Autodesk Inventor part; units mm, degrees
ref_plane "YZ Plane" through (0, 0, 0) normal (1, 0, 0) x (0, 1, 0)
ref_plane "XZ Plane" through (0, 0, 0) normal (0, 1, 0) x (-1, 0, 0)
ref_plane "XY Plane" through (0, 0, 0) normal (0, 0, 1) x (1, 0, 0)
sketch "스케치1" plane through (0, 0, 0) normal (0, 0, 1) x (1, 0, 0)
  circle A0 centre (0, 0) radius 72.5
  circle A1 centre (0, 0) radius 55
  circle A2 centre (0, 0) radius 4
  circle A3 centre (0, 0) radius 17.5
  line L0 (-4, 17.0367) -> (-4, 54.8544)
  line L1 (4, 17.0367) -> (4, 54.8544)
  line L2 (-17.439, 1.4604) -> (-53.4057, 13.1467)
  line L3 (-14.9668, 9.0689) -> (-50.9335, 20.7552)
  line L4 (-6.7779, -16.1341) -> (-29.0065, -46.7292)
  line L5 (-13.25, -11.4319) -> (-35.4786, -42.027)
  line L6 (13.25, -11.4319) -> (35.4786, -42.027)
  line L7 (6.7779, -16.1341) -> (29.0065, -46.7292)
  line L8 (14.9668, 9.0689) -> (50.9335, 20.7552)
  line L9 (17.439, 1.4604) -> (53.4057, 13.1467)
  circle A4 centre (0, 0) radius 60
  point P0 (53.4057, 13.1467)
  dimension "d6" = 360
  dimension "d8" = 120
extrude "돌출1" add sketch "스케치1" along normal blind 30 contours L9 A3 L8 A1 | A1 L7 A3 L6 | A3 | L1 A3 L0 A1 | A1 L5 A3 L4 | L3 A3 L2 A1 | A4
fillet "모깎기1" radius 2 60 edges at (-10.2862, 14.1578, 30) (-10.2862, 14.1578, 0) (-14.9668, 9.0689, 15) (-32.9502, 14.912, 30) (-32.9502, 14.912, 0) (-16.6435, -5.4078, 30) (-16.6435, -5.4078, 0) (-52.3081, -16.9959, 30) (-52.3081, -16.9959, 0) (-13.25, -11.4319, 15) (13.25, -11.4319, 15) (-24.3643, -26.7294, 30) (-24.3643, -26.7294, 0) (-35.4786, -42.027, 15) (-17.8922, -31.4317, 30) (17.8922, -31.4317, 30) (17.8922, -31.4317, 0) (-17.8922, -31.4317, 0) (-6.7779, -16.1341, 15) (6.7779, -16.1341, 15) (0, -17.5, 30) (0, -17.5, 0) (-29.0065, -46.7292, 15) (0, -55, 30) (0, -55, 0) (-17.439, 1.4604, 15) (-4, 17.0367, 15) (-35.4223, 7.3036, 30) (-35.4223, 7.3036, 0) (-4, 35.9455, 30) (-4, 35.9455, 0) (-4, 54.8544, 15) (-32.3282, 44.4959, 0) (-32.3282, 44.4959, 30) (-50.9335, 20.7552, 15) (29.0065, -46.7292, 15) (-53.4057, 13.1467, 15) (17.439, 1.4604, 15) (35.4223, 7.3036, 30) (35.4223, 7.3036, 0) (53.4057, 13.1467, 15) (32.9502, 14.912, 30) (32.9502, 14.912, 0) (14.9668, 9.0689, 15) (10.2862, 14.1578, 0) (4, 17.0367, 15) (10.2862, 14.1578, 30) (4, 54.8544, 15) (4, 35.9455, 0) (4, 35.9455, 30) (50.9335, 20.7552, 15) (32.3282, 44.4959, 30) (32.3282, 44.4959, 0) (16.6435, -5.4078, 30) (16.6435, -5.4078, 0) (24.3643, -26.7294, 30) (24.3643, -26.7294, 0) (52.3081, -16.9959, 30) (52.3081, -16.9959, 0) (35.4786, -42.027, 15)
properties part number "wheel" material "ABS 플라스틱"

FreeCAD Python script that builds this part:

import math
import FreeCAD as App
import Part
import Sketcher
Q = App.Units.Quantity


def edges_at(feature, points):
    """Names of the edges that pass closest to the given points."""
    edges = feature.Shape.Edges
    near = lambda p: min(range(len(edges)), key=lambda i: edges[i].distToShape(Part.Vertex(*p))[0])
    return sorted({f"Edge{near(p) + 1}" for p in points})

doc = App.newDocument("Part")
body = doc.addObject("PartDesign::Body", "Body")

# Sketch on XY plane
sketch1 = doc.addObject("Sketcher::SketchObject", "Sketch")
body.addObject(sketch1)
sketch1.AttachmentSupport = (doc.XY_Plane, [""])
sketch1.MapMode = "FlatFace"
sketch1.addGeometry([
    Part.Circle(App.Vector(0, 0, 0), App.Vector(0, 0, 1), 60),  # 0
    Part.LineSegment(App.Vector(17.439, 1.4604, 0), App.Vector(53.4057, 13.1467, 0)),  # 1
    Part.ArcOfCircle(Part.Circle(App.Vector(0, 0, 0), App.Vector(0, 0, 1), 55), math.radians(-49.829415), math.radians(13.82934)),  # 2
    Part.LineSegment(App.Vector(35.4786, -42.027, 0), App.Vector(13.25, -11.4319, 0)),  # 3
    Part.ArcOfCircle(Part.Circle(App.Vector(0, 0, 0), App.Vector(0, 0, 1), 17.5), math.radians(-40.787129), math.radians(4.78697)),  # 4
    Part.LineSegment(App.Vector(50.9335, 20.7552, 0), App.Vector(14.9668, 9.0689, 0)),  # 5
    Part.ArcOfCircle(Part.Circle(App.Vector(0, 0, 0), App.Vector(0, 0, 1), 17.5), math.radians(31.213117), math.radians(76.787001)),  # 6
    Part.LineSegment(App.Vector(4, 17.0367, 0), App.Vector(4, 54.8544, 0)),  # 7
    Part.ArcOfCircle(Part.Circle(App.Vector(0, 0, 0), App.Vector(0, 0, 1), 55), math.radians(22.170701), math.radians(85.829356)),  # 8
    Part.ArcOfCircle(Part.Circle(App.Vector(0, 0, 0), App.Vector(0, 0, 1), 17.5), math.radians(-112.787169), math.radians(-67.212831)),  # 9
    Part.LineSegment(App.Vector(6.7779, -16.1341, 0), App.Vector(29.0065, -46.7292, 0)),  # 10
    Part.ArcOfCircle(Part.Circle(App.Vector(0, 0, 0), App.Vector(0, 0, 1), 55), math.radians(-121.829366), math.radians(-58.170634)),  # 11
    Part.LineSegment(App.Vector(-29.0065, -46.7292, 0), App.Vector(-6.7779, -16.1341, 0)),  # 12
    Part.ArcOfCircle(Part.Circle(App.Vector(0, 0, 0), App.Vector(0, 0, 1), 17.5), math.radians(175.21303), math.radians(220.787129)),  # 13
    Part.LineSegment(App.Vector(-13.25, -11.4319, 0), App.Vector(-35.4786, -42.027, 0)),  # 14
    Part.ArcOfCircle(Part.Circle(App.Vector(0, 0, 0), App.Vector(0, 0, 1), 55), math.radians(166.17066), math.radians(229.829415)),  # 15
    Part.LineSegment(App.Vector(-53.4057, 13.1467, 0), App.Vector(-17.439, 1.4604, 0)),  # 16
    Part.ArcOfCircle(Part.Circle(App.Vector(0, 0, 0), App.Vector(0, 0, 1), 17.5), math.radians(103.212999), math.radians(148.786883)),  # 17
    Part.LineSegment(App.Vector(-14.9668, 9.0689, 0), App.Vector(-50.9335, 20.7552, 0)),  # 18
    Part.ArcOfCircle(Part.Circle(App.Vector(0, 0, 0), App.Vector(0, 0, 1), 55), math.radians(94.170644), math.radians(157.829299)),  # 19
    Part.LineSegment(App.Vector(-4, 54.8544, 0), App.Vector(-4, 17.0367, 0)),  # 20
    Part.Circle(App.Vector(0, 0, 0), App.Vector(0, 0, 1), 4),  # 21
], False)
sketch1.addConstraint([
    Sketcher.Constraint("Coincident", 1, 2, 2, 2),
    Sketcher.Constraint("Coincident", 2, 1, 3, 1),
    Sketcher.Constraint("Coincident", 3, 2, 4, 1),
    Sketcher.Constraint("Coincident", 4, 2, 1, 1),
    Sketcher.Constraint("Coincident", 5, 2, 6, 1),
    Sketcher.Constraint("Coincident", 6, 2, 7, 1),
    Sketcher.Constraint("Coincident", 7, 2, 8, 2),
    Sketcher.Constraint("Coincident", 8, 1, 5, 1),
    Sketcher.Constraint("Coincident", 9, 2, 10, 1),
    Sketcher.Constraint("Coincident", 10, 2, 11, 2),
    Sketcher.Constraint("Coincident", 11, 1, 12, 1),
    Sketcher.Constraint("Coincident", 12, 2, 9, 1),
    Sketcher.Constraint("Coincident", 13, 2, 14, 1),
    Sketcher.Constraint("Coincident", 14, 2, 15, 2),
    Sketcher.Constraint("Coincident", 15, 1, 16, 1),
    Sketcher.Constraint("Coincident", 16, 2, 13, 1),
    Sketcher.Constraint("Coincident", 17, 2, 18, 1),
    Sketcher.Constraint("Coincident", 18, 2, 19, 2),
    Sketcher.Constraint("Coincident", 19, 1, 20, 1),
    Sketcher.Constraint("Coincident", 20, 2, 17, 1),
    Sketcher.Constraint("Vertical", 7),
    Sketcher.Constraint("Vertical", 20),
    Sketcher.Constraint("Coincident", 0, 3, -1, 1),
    Sketcher.Constraint("Coincident", 2, 3, -1, 1),
    Sketcher.Constraint("Coincident", 4, 3, -1, 1),
    Sketcher.Constraint("Coincident", 6, 3, -1, 1),
    Sketcher.Constraint("Coincident", 8, 3, -1, 1),
    Sketcher.Constraint("Coincident", 9, 3, -1, 1),
    Sketcher.Constraint("Coincident", 11, 3, -1, 1),
    Sketcher.Constraint("Coincident", 13, 3, -1, 1),
    Sketcher.Constraint("Coincident", 15, 3, -1, 1),
    Sketcher.Constraint("Coincident", 17, 3, -1, 1),
    Sketcher.Constraint("Coincident", 19, 3, -1, 1),
    Sketcher.Constraint("Coincident", 21, 3, -1, 1),
    Sketcher.Constraint("Equal", 4, 6),
    Sketcher.Constraint("Equal", 2, 8),
    Sketcher.Constraint("Equal", 6, 9),
    Sketcher.Constraint("Equal", 8, 11),
    Sketcher.Constraint("Equal", 9, 13),
    Sketcher.Constraint("Equal", 11, 15),
    Sketcher.Constraint("Equal", 13, 17),
    Sketcher.Constraint("Equal", 15, 19),
    Sketcher.Constraint("Parallel", 1, 5),
    Sketcher.Constraint("Parallel", 3, 10),
    Sketcher.Constraint("Parallel", 12, 14),
    Sketcher.Constraint("Parallel", 16, 18),
    Sketcher.Constraint("Horizontal", 10, 2, 11, 1),
    Sketcher.Constraint("Horizontal", 9, 2, 12, 2),
    Sketcher.Constraint("Horizontal", 3, 2, 13, 2),
    Sketcher.Constraint("Horizontal", 1, 2, 15, 1),
    Sketcher.Constraint("Horizontal", 4, 2, 16, 2),
    Sketcher.Constraint("Horizontal", 5, 2, 17, 2),
    Sketcher.Constraint("Horizontal", 7, 2, 19, 1),
    Sketcher.Constraint("Equal", 1, 3),
    Sketcher.Constraint("Equal", 3, 5),
    Sketcher.Constraint("Equal", 5, 10),
    Sketcher.Constraint("Diameter", 0, Q("120 mm")),
    Sketcher.Constraint("Diameter", 21, Q("8 mm")),
    Sketcher.Constraint("Radius", 2, Q("55 mm")),
    Sketcher.Constraint("Radius", 4, Q("17.5 mm")),
    Sketcher.Constraint("Angle", 1, Q("18 deg")),
    Sketcher.Constraint("Angle", 3, Q("126 deg")),
    Sketcher.Constraint("DistanceX", -1, 1, 6, 2, Q("4 mm")),
    Sketcher.Constraint("DistanceX", -1, 1, 3, 2, Q("13.25 mm")),
])
pad1 = doc.addObject("PartDesign::Pad", "Pad")
body.addObject(pad1)
pad1.Profile = sketch1
pad1.Length = 30
doc.recompute()

fillet = doc.addObject("PartDesign::Fillet", "Fillet")
body.addObject(fillet)
fillet.Base = (pad1, edges_at(pad1, [
    (-10.286, 14.158, 30),
    (-10.286, 14.158, 0),
    (-14.967, 9.069, 15),
    (-32.95, 14.912, 30),
    (-32.95, 14.912, 0),
    (-16.643, -5.408, 30),
    (-16.643, -5.408, 0),
    (-52.308, -16.996, 30),
    (-52.308, -16.996, 0),
    (-13.25, -11.432, 15),
    (13.25, -11.432, 15),
    (-24.364, -26.729, 30),
    (-24.364, -26.729, 0),
    (-35.479, -42.027, 15),
    (-17.892, -31.432, 30),
    (17.892, -31.432, 30),
    (17.892, -31.432, 0),
    (-17.892, -31.432, 0),
    (-6.778, -16.134, 15),
    (6.778, -16.134, 15),
    (0, -17.5, 30),
    (0, -17.5, 0),
    (-29.006, -46.729, 15),
    (0, -55, 30),
    (0, -55, 0),
    (-17.439, 1.46, 15),
    (-4, 17.037, 15),
    (-35.422, 7.304, 30),
    (-35.422, 7.304, 0),
    (-4, 35.946, 30),
    (-4, 35.946, 0),
    (-4, 54.854, 15),
    (-32.328, 44.496, 0),
    (-32.328, 44.496, 30),
    (-50.934, 20.755, 15),
    (29.006, -46.729, 15),
    (-53.406, 13.147, 15),
    (17.439, 1.46, 15),
    (35.422, 7.304, 30),
    (35.422, 7.304, 0),
    (53.406, 13.147, 15),
    (32.95, 14.912, 30),
    (32.95, 14.912, 0),
    (14.967, 9.069, 15),
    (10.286, 14.158, 0),
    (4, 17.037, 15),
    (10.286, 14.158, 30),
    (4, 54.854, 15),
    (4, 35.946, 0),
    (4, 35.946, 30),
    (50.934, 20.755, 15),
    (32.328, 44.496, 30),
    (32.328, 44.496, 0),
    (16.643, -5.408, 30),
    (16.643, -5.408, 0),
    (24.364, -26.729, 30),
    (24.364, -26.729, 0),
    (52.308, -16.996, 30),
    (52.308, -16.996, 0),
    (35.479, -42.027, 15),
]))
fillet.Radius = 2

doc.recompute()
